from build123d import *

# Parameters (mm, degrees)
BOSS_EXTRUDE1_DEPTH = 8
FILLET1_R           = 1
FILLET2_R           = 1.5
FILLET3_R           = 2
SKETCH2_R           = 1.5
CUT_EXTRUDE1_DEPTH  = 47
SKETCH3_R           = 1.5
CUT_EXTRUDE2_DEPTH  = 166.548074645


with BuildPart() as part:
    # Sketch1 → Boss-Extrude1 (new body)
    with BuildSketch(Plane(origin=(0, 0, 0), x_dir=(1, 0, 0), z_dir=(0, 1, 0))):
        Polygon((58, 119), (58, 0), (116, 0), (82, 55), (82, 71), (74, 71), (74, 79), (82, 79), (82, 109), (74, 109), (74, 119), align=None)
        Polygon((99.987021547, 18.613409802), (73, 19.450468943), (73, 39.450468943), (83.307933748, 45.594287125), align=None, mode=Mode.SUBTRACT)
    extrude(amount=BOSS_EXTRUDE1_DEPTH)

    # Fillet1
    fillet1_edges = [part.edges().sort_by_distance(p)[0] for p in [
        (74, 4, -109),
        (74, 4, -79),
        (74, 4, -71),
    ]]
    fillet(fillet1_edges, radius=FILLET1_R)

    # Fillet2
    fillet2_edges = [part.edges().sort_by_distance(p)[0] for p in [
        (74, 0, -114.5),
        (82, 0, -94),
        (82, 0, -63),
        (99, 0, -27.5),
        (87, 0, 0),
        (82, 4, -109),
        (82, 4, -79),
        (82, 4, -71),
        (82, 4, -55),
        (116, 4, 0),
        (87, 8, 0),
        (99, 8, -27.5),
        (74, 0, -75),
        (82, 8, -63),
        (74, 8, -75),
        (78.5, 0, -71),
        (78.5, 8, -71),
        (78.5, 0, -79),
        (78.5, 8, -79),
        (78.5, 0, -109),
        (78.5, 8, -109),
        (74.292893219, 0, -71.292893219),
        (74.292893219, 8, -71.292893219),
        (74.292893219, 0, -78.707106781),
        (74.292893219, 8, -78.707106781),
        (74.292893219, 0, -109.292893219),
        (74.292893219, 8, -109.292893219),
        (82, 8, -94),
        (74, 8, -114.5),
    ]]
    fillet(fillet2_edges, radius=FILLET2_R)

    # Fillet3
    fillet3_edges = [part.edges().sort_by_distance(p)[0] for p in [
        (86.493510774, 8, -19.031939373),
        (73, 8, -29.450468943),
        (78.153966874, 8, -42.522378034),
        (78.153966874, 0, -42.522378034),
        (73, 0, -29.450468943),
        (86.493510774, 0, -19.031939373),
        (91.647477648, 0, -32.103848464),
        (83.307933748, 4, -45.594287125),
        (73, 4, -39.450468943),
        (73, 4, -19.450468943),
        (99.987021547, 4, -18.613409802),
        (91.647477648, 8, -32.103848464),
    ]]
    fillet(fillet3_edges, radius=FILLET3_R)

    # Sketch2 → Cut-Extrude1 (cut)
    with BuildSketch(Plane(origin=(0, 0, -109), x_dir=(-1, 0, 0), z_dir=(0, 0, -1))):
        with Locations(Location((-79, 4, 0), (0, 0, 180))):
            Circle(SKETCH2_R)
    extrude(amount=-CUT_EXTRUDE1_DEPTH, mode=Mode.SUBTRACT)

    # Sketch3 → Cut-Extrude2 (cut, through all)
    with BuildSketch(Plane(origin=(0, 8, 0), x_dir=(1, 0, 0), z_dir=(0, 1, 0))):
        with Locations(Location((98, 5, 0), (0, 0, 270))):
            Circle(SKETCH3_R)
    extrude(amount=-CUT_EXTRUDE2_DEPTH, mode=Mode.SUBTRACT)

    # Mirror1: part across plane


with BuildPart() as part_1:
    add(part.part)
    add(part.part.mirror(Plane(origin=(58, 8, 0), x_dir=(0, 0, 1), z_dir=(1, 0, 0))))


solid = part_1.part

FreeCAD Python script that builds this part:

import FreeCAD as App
import Part
import Sketcher
Q = App.Units.Quantity


def edges_at(feature, points):
    """Names of the edges that pass closest to the given points."""
    edges = feature.Shape.Edges
    near = lambda p: min(range(len(edges)), key=lambda i: edges[i].distToShape(Part.Vertex(*p))[0])
    return sorted({f"Edge{near(p) + 1}" for p in points})

doc = App.newDocument("Part")
body = doc.addObject("PartDesign::Body", "Body")

# Sketch on XZ plane
sketch1 = body.newObject("Sketcher::SketchObject", "Sketch")
sketch1.AttachmentSupport = (doc.getObject("XZ_Plane"), [""])
sketch1.MapMode = "FlatFace"
sketch1.addGeometry([
    Part.LineSegment(App.Vector(58, -119, 0), App.Vector(58, 0, 0)),  # 0
    Part.LineSegment(App.Vector(58, 0, 0), App.Vector(116, 0, 0)),  # 1
    Part.LineSegment(App.Vector(116, 0, 0), App.Vector(82, -55, 0)),  # 2
    Part.LineSegment(App.Vector(82, -55, 0), App.Vector(82, -71, 0)),  # 3
    Part.LineSegment(App.Vector(82, -71, 0), App.Vector(74, -71, 0)),  # 4
    Part.LineSegment(App.Vector(74, -71, 0), App.Vector(74, -79, 0)),  # 5
    Part.LineSegment(App.Vector(74, -79, 0), App.Vector(82, -79, 0)),  # 6
    Part.LineSegment(App.Vector(82, -79, 0), App.Vector(82, -109, 0)),  # 7
    Part.LineSegment(App.Vector(82, -109, 0), App.Vector(74, -109, 0)),  # 8
    Part.LineSegment(App.Vector(74, -109, 0), App.Vector(74, -119, 0)),  # 9
    Part.LineSegment(App.Vector(74, -119, 0), App.Vector(58, -119, 0)),  # 10
    Part.LineSegment(App.Vector(83, -46, 0), App.Vector(100, -19, 0)),  # 11
    Part.LineSegment(App.Vector(100, -19, 0), App.Vector(73, -19, 0)),  # 12
    Part.LineSegment(App.Vector(73, -19, 0), App.Vector(73, -39, 0)),  # 13
    Part.LineSegment(App.Vector(73, -39, 0), App.Vector(83, -46, 0)),  # 14
], False)
sketch1.addConstraint([
    Sketcher.Constraint("Coincident", 0, 2, 1, 1),
    Sketcher.Constraint("Coincident", 1, 2, 2, 1),
    Sketcher.Constraint("Coincident", 2, 2, 3, 1),
    Sketcher.Constraint("Coincident", 3, 2, 4, 1),
    Sketcher.Constraint("Coincident", 4, 2, 5, 1),
    Sketcher.Constraint("Coincident", 5, 2, 6, 1),
    Sketcher.Constraint("Coincident", 6, 2, 7, 1),
    Sketcher.Constraint("Coincident", 7, 2, 8, 1),
    Sketcher.Constraint("Coincident", 8, 2, 9, 1),
    Sketcher.Constraint("Coincident", 9, 2, 10, 1),
    Sketcher.Constraint("Coincident", 10, 2, 0, 1),
    Sketcher.Constraint("Coincident", 11, 2, 12, 1),
    Sketcher.Constraint("Coincident", 12, 2, 13, 1),
    Sketcher.Constraint("Coincident", 13, 2, 14, 1),
    Sketcher.Constraint("Coincident", 14, 2, 11, 1),
    Sketcher.Constraint("Vertical", 0),
    Sketcher.Constraint("Horizontal", 1),
    Sketcher.Constraint("Vertical", 3),
    Sketcher.Constraint("Horizontal", 4),
    Sketcher.Constraint("Vertical", 5),
    Sketcher.Constraint("Horizontal", 6),
    Sketcher.Constraint("Vertical", 7),
    Sketcher.Constraint("Horizontal", 8),
    Sketcher.Constraint("Vertical", 9),
    Sketcher.Constraint("Horizontal", 10),
    Sketcher.Constraint("Vertical", 13),
    Sketcher.Constraint("PointOnObject", 0, 2, -1),
    Sketcher.Constraint("Parallel", 2, 11),
    Sketcher.Constraint("Vertical", 3, 2, 6, 2),
    Sketcher.Constraint("Vertical", 5, 2, 8, 2),
    Sketcher.Constraint("Equal", 10, 3),
    Sketcher.Constraint("Equal", 8, 5),
    Sketcher.Constraint("DistanceX", 1, 1, 1, 2, Q("58 mm")),
    Sketcher.Constraint("DistanceX", 4, 2, 4, 1, Q("8 mm")),
    Sketcher.Constraint("DistanceX", 10, 2, 10, 1, Q("16 mm")),
    Sketcher.Constraint("DistanceY", 0, 1, 0, 2, Q("119 mm")),
    Sketcher.Constraint("DistanceY", 7, 2, 7, 1, Q("30 mm")),
    Sketcher.Constraint("DistanceY", 9, 2, 9, 1, Q("10 mm")),
    Sketcher.Constraint("DistanceY", 13, 2, 13, 1, Q("20 mm")),
    Sketcher.Constraint("Distance", 12, Q("27 mm")),
    Sketcher.Constraint("Distance", 14, Q("12 mm")),
    Sketcher.Constraint("DistanceX", -1, 1, 0, 2, Q("58 mm")),
    Sketcher.Constraint("DistanceX", -1, 1, 12, 2, Q("73 mm")),
    Sketcher.Constraint("Distance", 11, Q("31.720021 mm")),
    Sketcher.Constraint("DistanceY", 11, 2, -1, 1, Q("18.61341 mm")),
])
pad1 = body.newObject("PartDesign::Pad", "Pad")
pad1.Profile = sketch1
pad1.Length = 8
pad1.Reversed = True
doc.recompute()

fillet = body.newObject("PartDesign::Fillet", "Fillet")
fillet.Base = (pad1, edges_at(pad1, [(74, 4, -109), (74, 4, -79), (74, 4, -71)]))
fillet.Radius = 1
doc.recompute()

fillet2 = body.newObject("PartDesign::Fillet", "Fillet001")
fillet2.Base = (fillet, edges_at(fillet, [
    (74, 0, -114.5),
    (82, 0, -94),
    (82, 0, -63),
    (99, 0, -27.5),
    (87, 0, 0),
    (82, 4, -109),
    (82, 4, -79),
    (82, 4, -71),
    (82, 4, -55),
    (116, 4, 0),
    (87, 8, 0),
    (99, 8, -27.5),
    (74, 0, -75),
    (82, 8, -63),
    (74, 8, -75),
    (78.5, 0, -71),
    (78.5, 8, -71),
    (78.5, 0, -79),
    (78.5, 8, -79),
    (78.5, 0, -109),
    (78.5, 8, -109),
    (74.293, 0, -71.293),
    (74.293, 8, -71.293),
    (74.293, 0, -78.707),
    (74.293, 8, -78.707),
    (74.293, 0, -109.293),
    (74.293, 8, -109.293),
    (82, 8, -94),
    (74, 8, -114.5),
]))
fillet2.Radius = 1.5
doc.recompute()

fillet3 = body.newObject("PartDesign::Fillet", "Fillet002")
fillet3.Base = (fillet2, edges_at(fillet2, [
    (86.494, 8, -19.032),
    (73, 8, -29.45),
    (78.154, 8, -42.522),
    (78.154, 0, -42.522),
    (73, 0, -29.45),
    (86.494, 0, -19.032),
    (91.647, 0, -32.104),
    (83.308, 4, -45.594),
    (73, 4, -39.45),
    (73, 4, -19.45),
    (99.987, 4, -18.613),
    (91.647, 8, -32.104),
]))
fillet3.Radius = 2

# Sketch on XY plane
sketch2 = body.newObject("Sketcher::SketchObject", "Sketch001")
sketch2.AttachmentSupport = (doc.getObject("XY_Plane"), [""])
sketch2.MapMode = "FlatFace"
sketch2.AttachmentOffset = App.Placement(App.Vector(0, 0, -109), App.Rotation())
sketch2.addGeometry(Part.Circle(App.Vector(79, 4, 0), App.Vector(0, 0, 1), 1.5), False)
sketch2.addConstraint([
    Sketcher.Constraint("Diameter", 0, Q("3 mm")),
    Sketcher.Constraint("DistanceX", -1, 1, 0, 3, Q("79 mm")),
    Sketcher.Constraint("DistanceY", -1, 1, 0, 3, Q("4 mm")),
])
pocket1 = body.newObject("PartDesign::Pocket", "Pocket")
pocket1.Profile = sketch2
pocket1.Length = 47
pocket1.Reversed = True

# Sketch on XZ plane
sketch3 = body.newObject("Sketcher::SketchObject", "Sketch002")
sketch3.AttachmentSupport = (doc.getObject("XZ_Plane"), [""])
sketch3.MapMode = "FlatFace"
sketch3.AttachmentOffset = App.Placement(App.Vector(0, 0, -8), App.Rotation())
sketch3.addGeometry(Part.Circle(App.Vector(98, -5, 0), App.Vector(0, 0, 1), 1.5), False)
sketch3.addConstraint([
    Sketcher.Constraint("Diameter", 0, Q("3 mm")),
    Sketcher.Constraint("DistanceX", -1, 1, 0, 3, Q("98 mm")),
    Sketcher.Constraint("DistanceY", 0, 3, -1, 1, Q("5 mm")),
])
pocket2 = body.newObject("PartDesign::Pocket", "Pocket001")
pocket2.Profile = sketch3
pocket2.Type = "ThroughAll"
pocket2.Reversed = True
body2 = doc.addObject("PartDesign::Body", "Body001")
doc.recompute()

body2.BaseFeature = body
doc.recompute()

mirroring = doc.addObject("Part::Mirroring", "Mirroring")
mirroring.Source = body
mirroring.Base = App.Vector(58, 8, 0)
mirroring.Normal = App.Vector(1, 0, 0)
body3 = doc.addObject("PartDesign::Body", "Body002")
body3.BaseFeature = mirroring
boolean = body2.newObject("PartDesign::Boolean", "Boolean")
boolean.Type = "Fuse"
boolean.addObjects([body3])
doc.recompute()
mirroring.Visibility = False

doc.recompute()
